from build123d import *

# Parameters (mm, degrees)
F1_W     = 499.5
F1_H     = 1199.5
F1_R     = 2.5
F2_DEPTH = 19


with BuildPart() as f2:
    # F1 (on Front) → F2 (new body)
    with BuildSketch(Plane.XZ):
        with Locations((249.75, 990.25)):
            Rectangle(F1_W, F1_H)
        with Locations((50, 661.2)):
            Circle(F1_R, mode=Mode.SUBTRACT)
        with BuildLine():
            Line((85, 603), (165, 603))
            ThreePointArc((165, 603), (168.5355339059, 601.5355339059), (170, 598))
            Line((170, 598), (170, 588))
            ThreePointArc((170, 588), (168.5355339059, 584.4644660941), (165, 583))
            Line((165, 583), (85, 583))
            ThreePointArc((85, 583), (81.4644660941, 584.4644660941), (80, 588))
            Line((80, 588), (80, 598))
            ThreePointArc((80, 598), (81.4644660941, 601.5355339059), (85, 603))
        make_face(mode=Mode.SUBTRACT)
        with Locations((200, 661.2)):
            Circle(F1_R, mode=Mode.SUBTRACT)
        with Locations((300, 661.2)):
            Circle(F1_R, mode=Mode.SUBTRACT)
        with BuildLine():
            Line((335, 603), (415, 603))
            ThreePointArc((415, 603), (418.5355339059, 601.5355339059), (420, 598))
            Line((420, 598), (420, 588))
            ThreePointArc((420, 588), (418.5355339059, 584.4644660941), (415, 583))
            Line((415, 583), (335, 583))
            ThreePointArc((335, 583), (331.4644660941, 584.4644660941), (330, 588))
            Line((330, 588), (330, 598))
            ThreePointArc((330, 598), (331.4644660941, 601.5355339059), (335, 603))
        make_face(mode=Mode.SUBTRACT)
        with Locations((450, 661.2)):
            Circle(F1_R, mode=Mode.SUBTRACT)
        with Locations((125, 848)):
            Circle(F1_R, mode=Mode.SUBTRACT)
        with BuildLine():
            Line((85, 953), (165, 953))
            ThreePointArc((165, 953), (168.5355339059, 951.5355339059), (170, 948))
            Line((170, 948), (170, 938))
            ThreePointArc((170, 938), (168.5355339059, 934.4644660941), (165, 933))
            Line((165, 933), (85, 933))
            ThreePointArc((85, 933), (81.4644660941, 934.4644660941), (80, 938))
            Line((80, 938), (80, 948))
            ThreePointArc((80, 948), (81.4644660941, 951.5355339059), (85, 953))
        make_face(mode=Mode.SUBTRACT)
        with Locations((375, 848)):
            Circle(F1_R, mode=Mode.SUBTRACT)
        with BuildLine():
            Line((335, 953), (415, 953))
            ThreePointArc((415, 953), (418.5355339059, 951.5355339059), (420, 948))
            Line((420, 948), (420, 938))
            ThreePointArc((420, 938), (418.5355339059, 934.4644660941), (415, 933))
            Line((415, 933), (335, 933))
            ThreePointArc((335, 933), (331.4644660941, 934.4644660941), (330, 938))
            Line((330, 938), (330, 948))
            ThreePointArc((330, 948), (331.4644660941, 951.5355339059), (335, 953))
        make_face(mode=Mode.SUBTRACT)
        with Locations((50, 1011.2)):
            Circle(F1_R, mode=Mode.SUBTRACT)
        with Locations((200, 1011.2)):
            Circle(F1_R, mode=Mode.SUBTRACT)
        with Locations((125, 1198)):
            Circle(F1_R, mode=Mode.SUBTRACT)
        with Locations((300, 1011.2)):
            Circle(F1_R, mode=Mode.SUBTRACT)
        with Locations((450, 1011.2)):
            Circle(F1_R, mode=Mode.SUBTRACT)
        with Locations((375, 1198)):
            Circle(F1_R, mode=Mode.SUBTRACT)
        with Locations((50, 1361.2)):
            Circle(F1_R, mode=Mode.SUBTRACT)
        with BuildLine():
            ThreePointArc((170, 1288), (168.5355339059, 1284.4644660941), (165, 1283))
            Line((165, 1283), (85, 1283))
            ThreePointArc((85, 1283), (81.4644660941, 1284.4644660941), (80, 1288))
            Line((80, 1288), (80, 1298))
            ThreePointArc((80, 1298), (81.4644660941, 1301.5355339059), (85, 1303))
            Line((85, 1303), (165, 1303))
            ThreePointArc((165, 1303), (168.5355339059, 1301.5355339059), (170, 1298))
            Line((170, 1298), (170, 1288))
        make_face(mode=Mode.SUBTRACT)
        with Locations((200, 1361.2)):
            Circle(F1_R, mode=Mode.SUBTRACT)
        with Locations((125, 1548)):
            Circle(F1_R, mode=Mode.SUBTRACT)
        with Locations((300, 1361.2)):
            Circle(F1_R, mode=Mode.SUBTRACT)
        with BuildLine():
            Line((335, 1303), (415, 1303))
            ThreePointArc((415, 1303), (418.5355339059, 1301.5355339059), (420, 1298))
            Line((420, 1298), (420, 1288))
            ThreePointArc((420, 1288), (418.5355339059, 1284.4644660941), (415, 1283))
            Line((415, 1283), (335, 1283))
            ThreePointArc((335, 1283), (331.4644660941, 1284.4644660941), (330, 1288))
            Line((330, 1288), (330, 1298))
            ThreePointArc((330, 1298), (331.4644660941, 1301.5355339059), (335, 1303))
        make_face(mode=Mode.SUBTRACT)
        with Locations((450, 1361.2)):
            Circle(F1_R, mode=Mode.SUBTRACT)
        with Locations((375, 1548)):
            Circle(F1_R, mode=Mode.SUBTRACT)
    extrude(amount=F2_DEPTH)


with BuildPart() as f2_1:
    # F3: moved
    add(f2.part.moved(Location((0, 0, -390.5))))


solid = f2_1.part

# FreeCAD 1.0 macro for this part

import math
import FreeCAD as App
import Part
import Sketcher
from FreeCAD import Vector


def add_polygon(sketch, points):
    """Adds a closed chain of lines whose ends are joined by coincident constraints."""
    first, n = sketch.GeometryCount, len(points)
    for a, b in zip(points, points[1:] + points[:1]):
        sketch.addGeometry(Part.LineSegment(App.Vector(*a, 0), App.Vector(*b, 0)), False)
    for i in range(n):
        sketch.addConstraint(Sketcher.Constraint("Coincident", first + i, 2, first + (i + 1) % n, 1))

doc = App.newDocument("Part")
params = doc.addObject("Spreadsheet::Sheet", "Params")
for row, (alias, value) in enumerate([
    ("sketch1_diameter", "5 mm"),
    ("sketch1_radius", "5 mm"),
    ("sketch1_width", "80 mm"),
    ("sketch1_height", "10 mm"),
    ("sketch1_width2", "499.5 mm"),
    ("pad1_length", "19 mm"),
], start=1):
    params.set(f"A{row}", alias)
    params.set(f"B{row}", "=" + value)
    params.setAlias(f"B{row}", alias)

body = doc.addObject("PartDesign::Body", "Body")

sketch1 = body.newObject("Sketcher::SketchObject", "Sketch")
sketch1.AttachmentSupport = (doc.getObject("XZ_Plane"), [""])
sketch1.MapMode = "FlatFace"
add_polygon(sketch1, [(0, 1590), (0, 390.5), (499.5, 390.5), (499.5, 1590)])
sketch1.addGeometry(Part.Circle(Vector(50, 661.2, 0), Vector(0, 0, 1), 2.5), False)
sketch1.addGeometry(Part.ArcOfCircle(Part.Circle(Vector(85, 598, 0), Vector(0, 0, 1), 5), math.radians(90), math.radians(180)), False)
sketch1.addGeometry(Part.LineSegment(Vector(85, 603, 0), Vector(165, 603, 0)), False)
sketch1.addGeometry(Part.ArcOfCircle(Part.Circle(Vector(165, 598, 0), Vector(0, 0, 1), 5), math.radians(0), math.radians(90)), False)
sketch1.addGeometry(Part.LineSegment(Vector(170, 598, 0), Vector(170, 588, 0)), False)
sketch1.addGeometry(Part.ArcOfCircle(Part.Circle(Vector(165, 588, 0), Vector(0, 0, 1), 5), math.radians(-90), math.radians(0)), False)
sketch1.addGeometry(Part.LineSegment(Vector(165, 583, 0), Vector(85, 583, 0)), False)
sketch1.addGeometry(Part.ArcOfCircle(Part.Circle(Vector(85, 588, 0), Vector(0, 0, 1), 5), math.radians(180), math.radians(270)), False)
sketch1.addGeometry(Part.LineSegment(Vector(80, 588, 0), Vector(80, 598, 0)), False)
sketch1.addGeometry(Part.Circle(Vector(200, 661.2, 0), Vector(0, 0, 1), 2.5), False)
sketch1.addGeometry(Part.Circle(Vector(125, 848, 0), Vector(0, 0, 1), 2.5), False)
sketch1.addGeometry(Part.ArcOfCircle(Part.Circle(Vector(85, 948, 0), Vector(0, 0, 1), 5), math.radians(90), math.radians(180)), False)
sketch1.addGeometry(Part.LineSegment(Vector(85, 953, 0), Vector(165, 953, 0)), False)
sketch1.addGeometry(Part.ArcOfCircle(Part.Circle(Vector(165, 948, 0), Vector(0, 0, 1), 5), math.radians(0), math.radians(90)), False)
sketch1.addGeometry(Part.LineSegment(Vector(170, 948, 0), Vector(170, 938, 0)), False)
sketch1.addGeometry(Part.ArcOfCircle(Part.Circle(Vector(165, 938, 0), Vector(0, 0, 1), 5), math.radians(-90), math.radians(0)), False)
sketch1.addGeometry(Part.LineSegment(Vector(165, 933, 0), Vector(85, 933, 0)), False)
sketch1.addGeometry(Part.ArcOfCircle(Part.Circle(Vector(85, 938, 0), Vector(0, 0, 1), 5), math.radians(180), math.radians(270)), False)
sketch1.addGeometry(Part.LineSegment(Vector(80, 938, 0), Vector(80, 948, 0)), False)
sketch1.addGeometry(Part.Circle(Vector(50, 1011.2, 0), Vector(0, 0, 1), 2.5), False)
sketch1.addGeometry(Part.Circle(Vector(200, 1011.2, 0), Vector(0, 0, 1), 2.5), False)
sketch1.addGeometry(Part.Circle(Vector(300, 661.2, 0), Vector(0, 0, 1), 2.5), False)
sketch1.addGeometry(Part.ArcOfCircle(Part.Circle(Vector(335, 598, 0), Vector(0, 0, 1), 5), math.radians(90), math.radians(180)), False)
sketch1.addGeometry(Part.LineSegment(Vector(335, 603, 0), Vector(415, 603, 0)), False)
sketch1.addGeometry(Part.ArcOfCircle(Part.Circle(Vector(415, 598, 0), Vector(0, 0, 1), 5), math.radians(0), math.radians(90)), False)
sketch1.addGeometry(Part.LineSegment(Vector(420, 598, 0), Vector(420, 588, 0)), False)
sketch1.addGeometry(Part.ArcOfCircle(Part.Circle(Vector(415, 588, 0), Vector(0, 0, 1), 5), math.radians(-90), math.radians(0)), False)
sketch1.addGeometry(Part.LineSegment(Vector(415, 583, 0), Vector(335, 583, 0)), False)
sketch1.addGeometry(Part.ArcOfCircle(Part.Circle(Vector(335, 588, 0), Vector(0, 0, 1), 5), math.radians(180), math.radians(270)), False)
sketch1.addGeometry(Part.LineSegment(Vector(330, 588, 0), Vector(330, 598, 0)), False)
sketch1.addGeometry(Part.Circle(Vector(450, 661.2, 0), Vector(0, 0, 1), 2.5), False)
sketch1.addGeometry(Part.Circle(Vector(300, 1011.2, 0), Vector(0, 0, 1), 2.5), False)
sketch1.addGeometry(Part.Circle(Vector(375, 848, 0), Vector(0, 0, 1), 2.5), False)
sketch1.addGeometry(Part.ArcOfCircle(Part.Circle(Vector(335, 948, 0), Vector(0, 0, 1), 5), math.radians(90), math.radians(180)), False)
sketch1.addGeometry(Part.LineSegment(Vector(335, 953, 0), Vector(415, 953, 0)), False)
sketch1.addGeometry(Part.ArcOfCircle(Part.Circle(Vector(415, 948, 0), Vector(0, 0, 1), 5), math.radians(0), math.radians(90)), False)
sketch1.addGeometry(Part.LineSegment(Vector(420, 948, 0), Vector(420, 938, 0)), False)
sketch1.addGeometry(Part.ArcOfCircle(Part.Circle(Vector(415, 938, 0), Vector(0, 0, 1), 5), math.radians(-90), math.radians(0)), False)
sketch1.addGeometry(Part.LineSegment(Vector(415, 933, 0), Vector(335, 933, 0)), False)
sketch1.addGeometry(Part.ArcOfCircle(Part.Circle(Vector(335, 938, 0), Vector(0, 0, 1), 5), math.radians(180), math.radians(270)), False)
sketch1.addGeometry(Part.LineSegment(Vector(330, 938, 0), Vector(330, 948, 0)), False)
sketch1.addGeometry(Part.Circle(Vector(450, 1011.2, 0), Vector(0, 0, 1), 2.5), False)
sketch1.addGeometry(Part.Circle(Vector(125, 1198, 0), Vector(0, 0, 1), 2.5), False)
sketch1.addGeometry(Part.LineSegment(Vector(170, 1298, 0), Vector(170, 1288, 0)), False)
sketch1.addGeometry(Part.ArcOfCircle(Part.Circle(Vector(165, 1288, 0), Vector(0, 0, 1), 5), math.radians(-90), math.radians(0)), False)
sketch1.addGeometry(Part.LineSegment(Vector(165, 1283, 0), Vector(85, 1283, 0)), False)
sketch1.addGeometry(Part.ArcOfCircle(Part.Circle(Vector(85, 1288, 0), Vector(0, 0, 1), 5), math.radians(180), math.radians(270)), False)
sketch1.addGeometry(Part.LineSegment(Vector(80, 1288, 0), Vector(80, 1298, 0)), False)
sketch1.addGeometry(Part.ArcOfCircle(Part.Circle(Vector(85, 1298, 0), Vector(0, 0, 1), 5), math.radians(90), math.radians(180)), False)
sketch1.addGeometry(Part.LineSegment(Vector(85, 1303, 0), Vector(165, 1303, 0)), False)
sketch1.addGeometry(Part.ArcOfCircle(Part.Circle(Vector(165, 1298, 0), Vector(0, 0, 1), 5), math.radians(0), math.radians(90)), False)
sketch1.addGeometry(Part.Circle(Vector(50, 1361.2, 0), Vector(0, 0, 1), 2.5), False)
sketch1.addGeometry(Part.Circle(Vector(125, 1548, 0), Vector(0, 0, 1), 2.5), False)
sketch1.addGeometry(Part.Circle(Vector(200, 1361.2, 0), Vector(0, 0, 1), 2.5), False)
sketch1.addGeometry(Part.Circle(Vector(375, 1198, 0), Vector(0, 0, 1), 2.5), False)
sketch1.addGeometry(Part.ArcOfCircle(Part.Circle(Vector(335, 1298, 0), Vector(0, 0, 1), 5), math.radians(90), math.radians(180)), False)
sketch1.addGeometry(Part.LineSegment(Vector(335, 1303, 0), Vector(415, 1303, 0)), False)
sketch1.addGeometry(Part.ArcOfCircle(Part.Circle(Vector(415, 1298, 0), Vector(0, 0, 1), 5), math.radians(0), math.radians(90)), False)
sketch1.addGeometry(Part.LineSegment(Vector(420, 1298, 0), Vector(420, 1288, 0)), False)
sketch1.addGeometry(Part.ArcOfCircle(Part.Circle(Vector(415, 1288, 0), Vector(0, 0, 1), 5), math.radians(-90), math.radians(0)), False)
sketch1.addGeometry(Part.LineSegment(Vector(415, 1283, 0), Vector(335, 1283, 0)), False)
sketch1.addGeometry(Part.ArcOfCircle(Part.Circle(Vector(335, 1288, 0), Vector(0, 0, 1), 5), math.radians(180), math.radians(270)), False)
sketch1.addGeometry(Part.LineSegment(Vector(330, 1288, 0), Vector(330, 1298, 0)), False)
sketch1.addGeometry(Part.Circle(Vector(300, 1361.2, 0), Vector(0, 0, 1), 2.5), False)
sketch1.addGeometry(Part.Circle(Vector(450, 1361.2, 0), Vector(0, 0, 1), 2.5), False)
sketch1.addGeometry(Part.Circle(Vector(375, 1548, 0), Vector(0, 0, 1), 2.5), False)
sketch1.addConstraint([
    Sketcher.Constraint("Tangent", 5, 1, 6, 1),
    Sketcher.Constraint("Tangent", 6, 2, 7, 2),
    Sketcher.Constraint("Tangent", 7, 1, 8, 1),
    Sketcher.Constraint("Tangent", 8, 2, 9, 2),
    Sketcher.Constraint("Tangent", 9, 1, 10, 1),
    Sketcher.Constraint("Tangent", 10, 2, 11, 2),
    Sketcher.Constraint("Tangent", 11, 1, 12, 1),
    Sketcher.Constraint("Tangent", 12, 2, 5, 2),
    Sketcher.Constraint("Tangent", 15, 1, 16, 1),
    Sketcher.Constraint("Tangent", 16, 2, 17, 2),
    Sketcher.Constraint("Tangent", 17, 1, 18, 1),
    Sketcher.Constraint("Tangent", 18, 2, 19, 2),
    Sketcher.Constraint("Tangent", 19, 1, 20, 1),
    Sketcher.Constraint("Tangent", 20, 2, 21, 2),
    Sketcher.Constraint("Tangent", 21, 1, 22, 1),
    Sketcher.Constraint("Tangent", 22, 2, 15, 2),
    Sketcher.Constraint("Tangent", 26, 1, 27, 1),
    Sketcher.Constraint("Tangent", 27, 2, 28, 2),
    Sketcher.Constraint("Tangent", 28, 1, 29, 1),
    Sketcher.Constraint("Tangent", 29, 2, 30, 2),
    Sketcher.Constraint("Tangent", 30, 1, 31, 1),
    Sketcher.Constraint("Tangent", 31, 2, 32, 2),
    Sketcher.Constraint("Tangent", 32, 1, 33, 1),
    Sketcher.Constraint("Tangent", 33, 2, 26, 2),
    Sketcher.Constraint("Tangent", 37, 1, 38, 1),
    Sketcher.Constraint("Tangent", 38, 2, 39, 2),
    Sketcher.Constraint("Tangent", 39, 1, 40, 1),
    Sketcher.Constraint("Tangent", 40, 2, 41, 2),
    Sketcher.Constraint("Tangent", 41, 1, 42, 1),
    Sketcher.Constraint("Tangent", 42, 2, 43, 2),
    Sketcher.Constraint("Tangent", 43, 1, 44, 1),
    Sketcher.Constraint("Tangent", 44, 2, 37, 2),
    Sketcher.Constraint("Tangent", 47, 2, 48, 2),
    Sketcher.Constraint("Tangent", 48, 1, 49, 1),
    Sketcher.Constraint("Tangent", 49, 2, 50, 2),
    Sketcher.Constraint("Tangent", 50, 1, 51, 1),
    Sketcher.Constraint("Tangent", 51, 2, 52, 2),
    Sketcher.Constraint("Tangent", 52, 1, 53, 1),
    Sketcher.Constraint("Tangent", 53, 2, 54, 2),
    Sketcher.Constraint("Tangent", 54, 1, 47, 1),
    Sketcher.Constraint("Tangent", 59, 1, 60, 1),
    Sketcher.Constraint("Tangent", 60, 2, 61, 2),
    Sketcher.Constraint("Tangent", 61, 1, 62, 1),
    Sketcher.Constraint("Tangent", 62, 2, 63, 2),
    Sketcher.Constraint("Tangent", 63, 1, 64, 1),
    Sketcher.Constraint("Tangent", 64, 2, 65, 2),
    Sketcher.Constraint("Tangent", 65, 1, 66, 1),
    Sketcher.Constraint("Tangent", 66, 2, 59, 2),
    Sketcher.Constraint("Vertical", 0),
    Sketcher.Constraint("Horizontal", 1),
    Sketcher.Constraint("Vertical", 2),
    Sketcher.Constraint("Horizontal", 3),
    Sketcher.Constraint("Horizontal", 6),
    Sketcher.Constraint("Vertical", 8),
    Sketcher.Constraint("Horizontal", 10),
    Sketcher.Constraint("Vertical", 12),
    Sketcher.Constraint("Horizontal", 16),
    Sketcher.Constraint("Vertical", 18),
    Sketcher.Constraint("Horizontal", 20),
    Sketcher.Constraint("Vertical", 22),
    Sketcher.Constraint("Horizontal", 27),
    Sketcher.Constraint("Vertical", 29),
    Sketcher.Constraint("Horizontal", 31),
    Sketcher.Constraint("Vertical", 33),
    Sketcher.Constraint("Horizontal", 38),
    Sketcher.Constraint("Vertical", 40),
    Sketcher.Constraint("Horizontal", 42),
    Sketcher.Constraint("Vertical", 44),
    Sketcher.Constraint("Vertical", 47),
    Sketcher.Constraint("Horizontal", 49),
    Sketcher.Constraint("Vertical", 51),
    Sketcher.Constraint("Horizontal", 53),
    Sketcher.Constraint("Horizontal", 60),
    Sketcher.Constraint("Vertical", 62),
    Sketcher.Constraint("Horizontal", 64),
    Sketcher.Constraint("Vertical", 66),
    Sketcher.Constraint("Equal", 5, 7),
    Sketcher.Constraint("Equal", 7, 9),
    Sketcher.Constraint("Equal", 9, 11),
    Sketcher.Constraint("Equal", 4, 13),
    Sketcher.Constraint("Equal", 13, 14),
    Sketcher.Constraint("Equal", 11, 15),
    Sketcher.Constraint("Equal", 15, 17),
    Sketcher.Constraint("Equal", 17, 19),
    Sketcher.Constraint("Equal", 19, 21),
    Sketcher.Constraint("Equal", 14, 23),
    Sketcher.Constraint("Equal", 23, 24),
    Sketcher.Constraint("Equal", 24, 25),
    Sketcher.Constraint("Equal", 21, 26),
    Sketcher.Constraint("Equal", 26, 28),
    Sketcher.Constraint("Equal", 28, 30),
    Sketcher.Constraint("Equal", 30, 32),
    Sketcher.Constraint("Equal", 25, 34),
    Sketcher.Constraint("Equal", 34, 35),
    Sketcher.Constraint("Equal", 35, 36),
    Sketcher.Constraint("Equal", 32, 37),
    Sketcher.Constraint("Equal", 37, 39),
    Sketcher.Constraint("Equal", 39, 41),
    Sketcher.Constraint("Equal", 41, 43),
    Sketcher.Constraint("Equal", 36, 45),
    Sketcher.Constraint("Equal", 45, 46),
    Sketcher.Constraint("Equal", 43, 48),
    Sketcher.Constraint("Equal", 48, 50),
    Sketcher.Constraint("Equal", 50, 52),
    Sketcher.Constraint("Equal", 52, 54),
    Sketcher.Constraint("Equal", 46, 55),
    Sketcher.Constraint("Equal", 55, 56),
    Sketcher.Constraint("Equal", 56, 57),
    Sketcher.Constraint("Equal", 57, 58),
    Sketcher.Constraint("Equal", 54, 59),
    Sketcher.Constraint("Equal", 59, 61),
    Sketcher.Constraint("Equal", 61, 63),
    Sketcher.Constraint("Equal", 63, 65),
    Sketcher.Constraint("Equal", 58, 67),
    Sketcher.Constraint("Equal", 67, 68),
    Sketcher.Constraint("Equal", 68, 69),
    Sketcher.Constraint("PointOnObject", 0, 2, -2),
    Sketcher.Constraint("Horizontal", 4, 3, 13, 3),
    Sketcher.Constraint("Horizontal", 23, 3, 24, 3),
    Sketcher.Constraint("Horizontal", 13, 3, 25, 3),
    Sketcher.Constraint("Horizontal", 7, 3, 26, 3),
    Sketcher.Constraint("Horizontal", 11, 3, 30, 3),
    Sketcher.Constraint("Horizontal", 25, 3, 34, 3),
    Sketcher.Constraint("Horizontal", 24, 3, 35, 3),
    Sketcher.Constraint("Horizontal", 14, 3, 36, 3),
    Sketcher.Constraint("Horizontal", 17, 3, 37, 3),
    Sketcher.Constraint("Horizontal", 21, 3, 41, 3),
    Sketcher.Constraint("Horizontal", 35, 3, 45, 3),
    Sketcher.Constraint("Horizontal", 55, 3, 57, 3),
    Sketcher.Constraint("Horizontal", 46, 3, 58, 3),
    Sketcher.Constraint("Horizontal", 54, 3, 59, 3),
    Sketcher.Constraint("Horizontal", 50, 3, 63, 3),
    Sketcher.Constraint("Horizontal", 57, 3, 67, 3),
    Sketcher.Constraint("Horizontal", 67, 3, 68, 3),
    Sketcher.Constraint("Horizontal", 56, 3, 69, 3),
    Sketcher.Constraint("Vertical", 11, 3, 15, 3),
    Sketcher.Constraint("Vertical", 9, 3, 17, 3),
    Sketcher.Constraint("Vertical", 4, 3, 23, 3),
    Sketcher.Constraint("Vertical", 13, 3, 24, 3),
    Sketcher.Constraint("Vertical", 25, 3, 35, 3),
    Sketcher.Constraint("Vertical", 32, 3, 37, 3),
    Sketcher.Constraint("Vertical", 30, 3, 39, 3),
    Sketcher.Constraint("Vertical", 34, 3, 45, 3),
    Sketcher.Constraint("Vertical", 14, 3, 46, 3),
    Sketcher.Constraint("Vertical", 19, 3, 48, 3),
    Sketcher.Constraint("Vertical", 21, 3, 50, 3),
    Sketcher.Constraint("Vertical", 23, 3, 55, 3),
    Sketcher.Constraint("Vertical", 46, 3, 56, 3),
    Sketcher.Constraint("Vertical", 24, 3, 57, 3),
    Sketcher.Constraint("Vertical", 36, 3, 58, 3),
    Sketcher.Constraint("Vertical", 43, 3, 59, 3),
    Sketcher.Constraint("Vertical", 41, 3, 61, 3),
    Sketcher.Constraint("Vertical", 35, 3, 67, 3),
    Sketcher.Constraint("Vertical", 45, 3, 68, 3),
    Sketcher.Constraint("Vertical", 58, 3, 69, 3),
    Sketcher.Constraint("Equal", 20, 27),
    Sketcher.Constraint("Equal", 12, 18),
    Sketcher.Constraint("Equal", 44, 47),
    Sketcher.Constraint("Diameter", 4, 5.0),
    Sketcher.Constraint("Radius", 5, 5.0),
    Sketcher.Constraint("DistanceX", 6, 1, 6, 2, 80.0),
    Sketcher.Constraint("DistanceY", 8, 2, 8, 1, 10.0),
    Sketcher.Constraint("DistanceX", 1, 1, 1, 2, 499.5),
    Sketcher.Constraint("DistanceY", 0, 2, 0, 1, 1199.5),
    Sketcher.Constraint("DistanceX", -1, 1, 4, 3, 50.0),
    Sketcher.Constraint("DistanceX", -1, 1, 5, 3, 85.0),
    Sketcher.Constraint("DistanceY", -1, 1, 5, 3, 598.0),
    Sketcher.Constraint("DistanceX", -1, 1, 13, 3, 200.0),
    Sketcher.Constraint("DistanceX", -1, 1, 14, 3, 125.0),
    Sketcher.Constraint("DistanceY", -1, 1, 14, 3, 848.0),
    Sketcher.Constraint("DistanceY", -1, 1, 15, 3, 948.0),
    Sketcher.Constraint("DistanceX", -1, 1, 25, 3, 300.0),
    Sketcher.Constraint("DistanceX", -1, 1, 26, 3, 335.0),
    Sketcher.Constraint("DistanceX", -1, 1, 34, 3, 450.0),
    Sketcher.Constraint("DistanceX", -1, 1, 36, 3, 375.0),
    Sketcher.Constraint("DistanceY", -1, 1, 46, 3, 1198.0),
    Sketcher.Constraint("DistanceY", -1, 1, 48, 3, 1288.0),
    Sketcher.Constraint("DistanceY", -1, 1, 56, 3, 1548.0),
    Sketcher.Constraint("DistanceY", -1, 1, 2, 2, 1590.0),
    Sketcher.Constraint("DistanceY", -1, 1, 4, 3, 661.2),
    Sketcher.Constraint("DistanceY", -1, 1, 23, 3, 1011.2),
    Sketcher.Constraint("DistanceY", -1, 1, 55, 3, 1361.2),
])
sketch1.setExpression("Constraints[162]", "Params.sketch1_diameter")
sketch1.setExpression("Constraints[163]", "Params.sketch1_radius")
sketch1.setExpression("Constraints[164]", "Params.sketch1_width")
sketch1.setExpression("Constraints[165]", "Params.sketch1_height")
sketch1.setExpression("Constraints[166]", "Params.sketch1_width2")
pad1 = body.newObject("PartDesign::Pad", "Pad")
pad1.Profile = sketch1
pad1.setExpression("Length", "Params.pad1_length")
body2 = doc.addObject("PartDesign::Body", "Body001")
doc.recompute()

body.Placement = App.Placement(Vector(0, 0, -390.5), App.Rotation(Vector(0, 0, 1), 0))
boolean = body2.newObject("PartDesign::Boolean", "Boolean")
boolean.Type = "Fuse"
boolean.addObjects([body])

doc.recompute()
